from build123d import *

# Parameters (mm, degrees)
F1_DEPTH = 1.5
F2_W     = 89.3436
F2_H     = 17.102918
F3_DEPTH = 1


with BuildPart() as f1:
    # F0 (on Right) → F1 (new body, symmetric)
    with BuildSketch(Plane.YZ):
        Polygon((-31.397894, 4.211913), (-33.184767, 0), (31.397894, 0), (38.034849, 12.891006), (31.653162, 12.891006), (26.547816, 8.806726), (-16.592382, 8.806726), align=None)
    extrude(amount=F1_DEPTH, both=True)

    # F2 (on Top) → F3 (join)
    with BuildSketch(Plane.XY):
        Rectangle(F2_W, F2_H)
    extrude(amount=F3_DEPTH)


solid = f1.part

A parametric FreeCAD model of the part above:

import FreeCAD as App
import Part
import Sketcher
Q = App.Units.Quantity

doc = App.newDocument("Part")
body = doc.addObject("PartDesign::Body", "Body")

# Sketch on YZ plane
sketch1 = body.newObject("Sketcher::SketchObject", "Sketch")
sketch1.AttachmentSupport = (doc.getObject("YZ_Plane"), [""])
sketch1.MapMode = "FlatFace"
sketch1.addGeometry(Part.LineSegment(App.Vector(-31.397894, 4.211913, 0), App.Vector(-33.184767, 0, 0)), False)
sketch1.addGeometry(Part.LineSegment(App.Vector(-33.184767, 0, 0), App.Vector(31.397894, 0, 0)), False)
sketch1.addGeometry(Part.LineSegment(App.Vector(31.397894, 0, 0), App.Vector(38.034849, 12.891006, 0)), False)
sketch1.addGeometry(Part.LineSegment(App.Vector(38.034849, 12.891006, 0), App.Vector(31.653162, 12.891006, 0)), False)
sketch1.addGeometry(Part.LineSegment(App.Vector(31.653162, 12.891006, 0), App.Vector(26.547816, 8.806726, 0)), False)
sketch1.addGeometry(Part.LineSegment(App.Vector(26.547816, 8.806726, 0), App.Vector(-16.592382, 8.806726, 0)), False)
sketch1.addGeometry(Part.LineSegment(App.Vector(-16.592382, 8.806726, 0), App.Vector(-31.397894, 4.211913, 0)), False)
sketch1.addConstraint(Sketcher.Constraint("Coincident", 0, 2, 1, 1))
sketch1.addConstraint(Sketcher.Constraint("Coincident", 1, 2, 2, 1))
sketch1.addConstraint(Sketcher.Constraint("Coincident", 2, 2, 3, 1))
sketch1.addConstraint(Sketcher.Constraint("Coincident", 3, 2, 4, 1))
sketch1.addConstraint(Sketcher.Constraint("Coincident", 4, 2, 5, 1))
sketch1.addConstraint(Sketcher.Constraint("Coincident", 5, 2, 6, 1))
sketch1.addConstraint(Sketcher.Constraint("Coincident", 6, 2, 0, 1))
sketch1.addConstraint(Sketcher.Constraint("Horizontal", 1))
sketch1.addConstraint(Sketcher.Constraint("Horizontal", 3))
sketch1.addConstraint(Sketcher.Constraint("Horizontal", 5))
sketch1.addConstraint(Sketcher.Constraint("PointOnObject", 0, 2, -1))
sketch1.addConstraint(Sketcher.Constraint("DistanceX", 1, 1, 1, 2, Q("64.582661 mm")))
sketch1.addConstraint(Sketcher.Constraint("DistanceX", 3, 2, 3, 1, Q("6.381687 mm")))
sketch1.addConstraint(Sketcher.Constraint("DistanceX", 5, 2, 5, 1, Q("43.140198 mm")))
sketch1.addConstraint(Sketcher.Constraint("DistanceX", -1, 1, 2, 2, Q("38.034849 mm")))
sketch1.addConstraint(Sketcher.Constraint("DistanceX", 0, 2, 3, 2, Q("64.837929 mm")))
sketch1.addConstraint(Sketcher.Constraint("DistanceY", 4, 2, 3, 2, Q("4.08428 mm")))
sketch1.addConstraint(Sketcher.Constraint("DistanceX", 5, 2, 2, 2, Q("54.627231 mm")))
sketch1.addConstraint(Sketcher.Constraint("DistanceX", 6, 2, 4, 2, Q("57.94571 mm")))
sketch1.addConstraint(Sketcher.Constraint("Distance", 0, Q("4.575273 mm")))
sketch1.addConstraint(Sketcher.Constraint("Distance", 2, Q("14.499214 mm")))
pad1 = body.newObject("PartDesign::Pad", "Pad")
pad1.Profile = sketch1
pad1.Length = 3
pad1.Midplane = True

# Sketch on XY plane
sketch2 = body.newObject("Sketcher::SketchObject", "Sketch001")
sketch2.AttachmentSupport = (doc.getObject("XY_Plane"), [""])
sketch2.MapMode = "FlatFace"
sketch2.addGeometry(Part.LineSegment(App.Vector(-44.6718, 8.551459, 0), App.Vector(-44.6718, -8.551459, 0)), False)
sketch2.addGeometry(Part.LineSegment(App.Vector(-44.6718, -8.551459, 0), App.Vector(44.6718, -8.551459, 0)), False)
sketch2.addGeometry(Part.LineSegment(App.Vector(44.6718, -8.551459, 0), App.Vector(44.6718, 8.551459, 0)), False)
sketch2.addGeometry(Part.LineSegment(App.Vector(44.6718, 8.551459, 0), App.Vector(-44.6718, 8.551459, 0)), False)
sketch2.addConstraint(Sketcher.Constraint("Coincident", 0, 2, 1, 1))
sketch2.addConstraint(Sketcher.Constraint("Coincident", 1, 2, 2, 1))
sketch2.addConstraint(Sketcher.Constraint("Coincident", 2, 2, 3, 1))
sketch2.addConstraint(Sketcher.Constraint("Coincident", 3, 2, 0, 1))
sketch2.addConstraint(Sketcher.Constraint("Vertical", 0))
sketch2.addConstraint(Sketcher.Constraint("Horizontal", 1))
sketch2.addConstraint(Sketcher.Constraint("Vertical", 2))
sketch2.addConstraint(Sketcher.Constraint("Horizontal", 3))
sketch2.addConstraint(Sketcher.Constraint("Symmetric", 0, 2, 2, 2, -1, 1))
sketch2.addConstraint(Sketcher.Constraint("DistanceX", 1, 1, 1, 2, Q("89.3436 mm")))
sketch2.addConstraint(Sketcher.Constraint("DistanceY", 0, 2, 0, 1, Q("17.102918 mm")))
pad2 = body.newObject("PartDesign::Pad", "Pad001")
pad2.Profile = sketch2
pad2.Length = 1

doc.recompute()
